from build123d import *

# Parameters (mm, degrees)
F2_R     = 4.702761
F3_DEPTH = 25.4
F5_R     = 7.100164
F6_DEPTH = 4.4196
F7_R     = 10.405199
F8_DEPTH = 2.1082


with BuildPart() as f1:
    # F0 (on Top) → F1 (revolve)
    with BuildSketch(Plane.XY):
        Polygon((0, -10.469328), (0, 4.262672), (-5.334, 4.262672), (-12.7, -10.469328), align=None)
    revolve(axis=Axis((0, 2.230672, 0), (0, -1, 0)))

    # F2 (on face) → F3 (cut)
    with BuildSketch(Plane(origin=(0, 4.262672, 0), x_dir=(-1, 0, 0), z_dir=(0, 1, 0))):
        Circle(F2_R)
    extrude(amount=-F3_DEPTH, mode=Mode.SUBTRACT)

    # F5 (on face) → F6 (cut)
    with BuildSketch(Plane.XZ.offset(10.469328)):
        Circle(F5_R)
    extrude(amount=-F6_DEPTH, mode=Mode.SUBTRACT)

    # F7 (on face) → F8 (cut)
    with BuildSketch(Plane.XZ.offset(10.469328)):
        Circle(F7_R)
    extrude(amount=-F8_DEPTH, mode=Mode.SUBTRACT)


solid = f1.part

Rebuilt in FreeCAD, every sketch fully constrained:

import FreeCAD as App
import Part
import Sketcher
Q = App.Units.Quantity

doc = App.newDocument("Part")
body = doc.addObject("PartDesign::Body", "Body")

# Sketch on XY plane
sketch1 = body.newObject("Sketcher::SketchObject", "Sketch")
sketch1.AttachmentSupport = (doc.getObject("XY_Plane"), [""])
sketch1.MapMode = "FlatFace"
sketch1.addGeometry(Part.LineSegment(App.Vector(0, -10, 0), App.Vector(0, 4, 0)), False)
sketch1.addGeometry(Part.LineSegment(App.Vector(0, 4, 0), App.Vector(-5, 4, 0)), False)
sketch1.addGeometry(Part.LineSegment(App.Vector(-5, 4, 0), App.Vector(-13, -10, 0)), False)
sketch1.addGeometry(Part.LineSegment(App.Vector(-13, -10, 0), App.Vector(0, -10, 0)), False)
sketch1.addConstraint(Sketcher.Constraint("Coincident", 0, 2, 1, 1))
sketch1.addConstraint(Sketcher.Constraint("Coincident", 1, 2, 2, 1))
sketch1.addConstraint(Sketcher.Constraint("Coincident", 2, 2, 3, 1))
sketch1.addConstraint(Sketcher.Constraint("Coincident", 3, 2, 0, 1))
sketch1.addConstraint(Sketcher.Constraint("Vertical", 0))
sketch1.addConstraint(Sketcher.Constraint("Horizontal", 1))
sketch1.addConstraint(Sketcher.Constraint("Horizontal", 3))
sketch1.addConstraint(Sketcher.Constraint("PointOnObject", 0, 2, -2))
sketch1.addConstraint(Sketcher.Constraint("DistanceX", 3, 1, 3, 2, Q("0.5 in")))
sketch1.addConstraint(Sketcher.Constraint("DistanceX", 1, 2, 1, 1, Q("0.21 in")))
sketch1.addConstraint(Sketcher.Constraint("DistanceY", 0, 1, 0, 2, Q("0.58 in")))
sketch1.addConstraint(Sketcher.Constraint("DistanceY", 2, 2, -1, 1, Q("10.469328 mm")))
revolution = body.newObject("PartDesign::Revolution", "Revolution")
revolution.Profile = sketch1
revolution.ReferenceAxis = (sketch1, ["V_Axis"])
revolution.Angle = 360

# Sketch on XZ plane
sketch2 = body.newObject("Sketcher::SketchObject", "Sketch001")
sketch2.AttachmentSupport = (doc.getObject("XZ_Plane"), [""])
sketch2.MapMode = "FlatFace"
sketch2.AttachmentOffset = App.Placement(App.Vector(0, 0, -4.262672), App.Rotation())
sketch2.addGeometry(Part.Circle(App.Vector(0, 0, 0), App.Vector(0, 0, 1), 4.7), False)
sketch2.addConstraint(Sketcher.Constraint("Coincident", 0, 3, -1, 1))
sketch2.addConstraint(Sketcher.Constraint("Diameter", 0, Q("9.405522 mm")))
pocket1 = body.newObject("PartDesign::Pocket", "Pocket")
pocket1.Profile = sketch2
pocket1.Length = Q("1 in")
pocket1.Reversed = True

# Sketch on XZ plane
sketch3 = body.newObject("Sketcher::SketchObject", "Sketch002")
sketch3.AttachmentSupport = (doc.getObject("XZ_Plane"), [""])
sketch3.MapMode = "FlatFace"
sketch3.AttachmentOffset = App.Placement(App.Vector(0, 0, 10.469328), App.Rotation())
sketch3.addGeometry(Part.Circle(App.Vector(0, 0, 0), App.Vector(0, 0, 1), 7), False)
sketch3.addConstraint(Sketcher.Constraint("Coincident", 0, 3, -1, 1))
sketch3.addConstraint(Sketcher.Constraint("Diameter", 0, Q("14.200328 mm")))
pocket2 = body.newObject("PartDesign::Pocket", "Pocket001")
pocket2.Profile = sketch3
pocket2.Length = Q("0.174 in")

# Sketch on XZ plane
sketch4 = body.newObject("Sketcher::SketchObject", "Sketch003")
sketch4.AttachmentSupport = (doc.getObject("XZ_Plane"), [""])
sketch4.MapMode = "FlatFace"
sketch4.AttachmentOffset = App.Placement(App.Vector(0, 0, 10.469328), App.Rotation())
sketch4.addGeometry(Part.Circle(App.Vector(0, 0, 0), App.Vector(0, 0, 1), 10), False)
sketch4.addConstraint(Sketcher.Constraint("Coincident", 0, 3, -1, 1))
sketch4.addConstraint(Sketcher.Constraint("Diameter", 0, Q("20.810398 mm")))
pocket3 = body.newObject("PartDesign::Pocket", "Pocket002")
pocket3.Profile = sketch4
pocket3.Length = Q("0.083 in")

doc.recompute()
